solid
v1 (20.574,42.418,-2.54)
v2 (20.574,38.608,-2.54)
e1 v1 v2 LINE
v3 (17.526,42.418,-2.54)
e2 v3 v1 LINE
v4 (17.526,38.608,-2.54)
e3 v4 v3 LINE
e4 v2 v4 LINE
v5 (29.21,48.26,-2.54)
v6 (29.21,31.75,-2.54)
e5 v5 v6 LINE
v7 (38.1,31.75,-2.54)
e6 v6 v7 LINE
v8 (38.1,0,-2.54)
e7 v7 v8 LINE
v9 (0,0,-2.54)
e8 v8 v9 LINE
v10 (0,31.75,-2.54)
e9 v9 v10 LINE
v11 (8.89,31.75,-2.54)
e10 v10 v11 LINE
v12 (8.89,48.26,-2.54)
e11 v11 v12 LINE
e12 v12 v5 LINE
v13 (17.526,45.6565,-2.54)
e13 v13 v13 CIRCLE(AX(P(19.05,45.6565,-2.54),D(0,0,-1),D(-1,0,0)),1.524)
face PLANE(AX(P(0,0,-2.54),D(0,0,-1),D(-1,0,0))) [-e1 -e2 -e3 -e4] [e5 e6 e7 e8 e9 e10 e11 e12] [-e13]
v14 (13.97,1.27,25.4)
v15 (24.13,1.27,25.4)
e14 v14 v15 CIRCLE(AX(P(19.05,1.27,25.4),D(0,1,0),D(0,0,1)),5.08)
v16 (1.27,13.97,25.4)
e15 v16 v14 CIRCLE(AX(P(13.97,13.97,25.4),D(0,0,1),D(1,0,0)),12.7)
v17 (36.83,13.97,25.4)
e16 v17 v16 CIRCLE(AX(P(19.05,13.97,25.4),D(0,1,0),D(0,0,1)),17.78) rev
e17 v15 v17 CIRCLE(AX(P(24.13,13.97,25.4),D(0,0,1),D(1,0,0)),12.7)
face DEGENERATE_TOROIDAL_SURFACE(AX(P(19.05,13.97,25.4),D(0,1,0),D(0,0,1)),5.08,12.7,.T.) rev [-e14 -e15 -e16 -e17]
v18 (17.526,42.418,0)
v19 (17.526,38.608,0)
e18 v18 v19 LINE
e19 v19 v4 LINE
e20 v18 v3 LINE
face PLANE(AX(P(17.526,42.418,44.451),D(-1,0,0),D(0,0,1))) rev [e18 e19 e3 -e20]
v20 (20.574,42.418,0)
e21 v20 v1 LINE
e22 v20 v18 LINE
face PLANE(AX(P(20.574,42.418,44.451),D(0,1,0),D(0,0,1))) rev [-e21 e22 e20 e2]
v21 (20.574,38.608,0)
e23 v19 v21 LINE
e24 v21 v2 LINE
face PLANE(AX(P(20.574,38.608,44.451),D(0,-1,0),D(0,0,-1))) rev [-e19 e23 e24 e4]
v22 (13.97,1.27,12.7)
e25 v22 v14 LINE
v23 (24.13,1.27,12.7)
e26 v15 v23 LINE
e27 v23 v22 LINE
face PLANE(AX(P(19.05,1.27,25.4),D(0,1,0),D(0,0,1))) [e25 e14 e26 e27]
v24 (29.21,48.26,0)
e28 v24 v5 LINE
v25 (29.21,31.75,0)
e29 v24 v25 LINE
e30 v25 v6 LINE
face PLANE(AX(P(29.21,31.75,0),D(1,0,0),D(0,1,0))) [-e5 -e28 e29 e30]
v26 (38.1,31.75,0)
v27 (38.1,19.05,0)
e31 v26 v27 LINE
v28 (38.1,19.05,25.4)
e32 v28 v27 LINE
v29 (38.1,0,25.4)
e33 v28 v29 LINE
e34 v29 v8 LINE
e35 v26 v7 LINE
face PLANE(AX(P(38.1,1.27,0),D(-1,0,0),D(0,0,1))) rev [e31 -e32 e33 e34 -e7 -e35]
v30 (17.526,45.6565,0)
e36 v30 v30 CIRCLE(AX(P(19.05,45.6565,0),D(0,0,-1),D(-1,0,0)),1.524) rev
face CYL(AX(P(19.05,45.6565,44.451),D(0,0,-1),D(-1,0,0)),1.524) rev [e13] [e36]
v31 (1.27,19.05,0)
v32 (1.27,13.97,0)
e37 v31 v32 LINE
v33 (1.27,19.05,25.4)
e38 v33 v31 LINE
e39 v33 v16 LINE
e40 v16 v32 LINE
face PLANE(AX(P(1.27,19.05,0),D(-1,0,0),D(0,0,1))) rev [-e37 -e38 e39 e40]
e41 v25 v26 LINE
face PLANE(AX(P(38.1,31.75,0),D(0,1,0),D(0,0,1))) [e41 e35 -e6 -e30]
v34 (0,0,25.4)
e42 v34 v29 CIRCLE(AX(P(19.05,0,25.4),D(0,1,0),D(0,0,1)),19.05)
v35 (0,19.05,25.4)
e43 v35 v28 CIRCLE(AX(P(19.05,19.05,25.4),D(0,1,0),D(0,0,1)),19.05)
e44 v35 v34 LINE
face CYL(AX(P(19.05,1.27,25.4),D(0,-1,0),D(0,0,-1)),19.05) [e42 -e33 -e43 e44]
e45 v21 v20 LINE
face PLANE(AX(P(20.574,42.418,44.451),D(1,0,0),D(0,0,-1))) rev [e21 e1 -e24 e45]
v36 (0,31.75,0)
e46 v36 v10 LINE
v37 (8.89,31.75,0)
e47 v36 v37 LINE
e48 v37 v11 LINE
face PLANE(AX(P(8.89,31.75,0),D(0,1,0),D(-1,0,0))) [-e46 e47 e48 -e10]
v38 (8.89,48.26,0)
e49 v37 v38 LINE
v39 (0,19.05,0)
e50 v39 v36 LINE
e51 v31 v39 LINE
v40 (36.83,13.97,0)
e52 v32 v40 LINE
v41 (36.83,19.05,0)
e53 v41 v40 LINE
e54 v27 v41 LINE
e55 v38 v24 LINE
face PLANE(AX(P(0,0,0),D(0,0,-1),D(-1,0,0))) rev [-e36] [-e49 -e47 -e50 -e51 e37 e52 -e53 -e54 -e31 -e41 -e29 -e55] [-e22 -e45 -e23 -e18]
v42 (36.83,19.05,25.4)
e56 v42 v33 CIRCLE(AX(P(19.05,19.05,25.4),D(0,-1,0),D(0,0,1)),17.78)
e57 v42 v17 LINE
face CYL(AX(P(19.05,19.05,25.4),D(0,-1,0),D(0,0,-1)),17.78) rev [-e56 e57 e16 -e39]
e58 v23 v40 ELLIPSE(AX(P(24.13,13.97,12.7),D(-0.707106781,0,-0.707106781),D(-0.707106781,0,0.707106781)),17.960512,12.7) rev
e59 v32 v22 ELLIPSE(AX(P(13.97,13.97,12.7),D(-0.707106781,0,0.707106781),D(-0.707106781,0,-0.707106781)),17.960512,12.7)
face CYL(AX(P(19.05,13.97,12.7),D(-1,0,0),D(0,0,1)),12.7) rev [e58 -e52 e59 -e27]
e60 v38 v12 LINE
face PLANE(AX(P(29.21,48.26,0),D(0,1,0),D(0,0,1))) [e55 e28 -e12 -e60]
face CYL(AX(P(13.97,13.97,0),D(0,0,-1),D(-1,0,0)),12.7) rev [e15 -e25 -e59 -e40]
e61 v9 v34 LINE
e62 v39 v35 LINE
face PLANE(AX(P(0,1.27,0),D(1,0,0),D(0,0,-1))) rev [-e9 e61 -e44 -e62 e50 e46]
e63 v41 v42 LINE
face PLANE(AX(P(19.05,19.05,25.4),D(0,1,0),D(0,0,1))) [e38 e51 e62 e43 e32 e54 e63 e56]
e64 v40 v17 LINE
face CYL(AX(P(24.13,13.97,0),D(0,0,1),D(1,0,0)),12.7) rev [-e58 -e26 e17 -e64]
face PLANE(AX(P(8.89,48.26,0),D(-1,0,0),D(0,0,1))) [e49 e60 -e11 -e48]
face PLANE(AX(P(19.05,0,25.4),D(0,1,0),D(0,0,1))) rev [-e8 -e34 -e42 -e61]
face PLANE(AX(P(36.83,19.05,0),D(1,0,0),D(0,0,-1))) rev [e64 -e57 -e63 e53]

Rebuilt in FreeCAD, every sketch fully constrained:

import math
import FreeCAD as App
import Part
import Sketcher
from FreeCAD import Vector
Q = App.Units.Quantity


def edges_at(feature, points):
    """Names of the edges that pass closest to the given points."""
    edges = feature.Shape.Edges
    near = lambda p: min(range(len(edges)), key=lambda i: edges[i].distToShape(Part.Vertex(*p))[0])
    return sorted({f"Edge{near(p) + 1}" for p in points})


def add_polygon(sketch, points):
    """Adds a closed chain of lines whose ends are joined by coincident constraints."""
    first, n = sketch.GeometryCount, len(points)
    for a, b in zip(points, points[1:] + points[:1]):
        sketch.addGeometry(Part.LineSegment(App.Vector(*a, 0), App.Vector(*b, 0)), False)
    for i in range(n):
        sketch.addConstraint(Sketcher.Constraint("Coincident", first + i, 2, first + (i + 1) % n, 1))

doc = App.newDocument("Part")
body = doc.addObject("PartDesign::Body", "Body")

sketch1 = body.newObject("Sketcher::SketchObject", "Sketch")
sketch1.AttachmentSupport = (doc.getObject("XZ_Plane"), [""])
sketch1.MapMode = "FlatFace"
sketch1.addGeometry([
    Part.LineSegment(Vector(38, 0, 0), Vector(0, 0, 0)),
    Part.LineSegment(Vector(0, 0, 0), Vector(0, 25, 0)),
    Part.ArcOfCircle(Part.Circle(Vector(19, 25, 0), Vector(0, 0, 1), 19), math.radians(0), math.radians(180)),
    Part.LineSegment(Vector(38, 25, 0), Vector(38, 0, 0)),
], False)
sketch1.addConstraint([
    Sketcher.Constraint("Coincident", 0, 2, 1, 1),
    Sketcher.Constraint("Tangent", 1, 2, 2, 2),
    Sketcher.Constraint("Tangent", 2, 1, 3, 1),
    Sketcher.Constraint("Coincident", 3, 2, 0, 1),
    Sketcher.Constraint("Horizontal", 0),
    Sketcher.Constraint("Vertical", 1),
    Sketcher.Constraint("Vertical", 3),
    Sketcher.Constraint("Coincident", 0, 2, -1, 1),
    Sketcher.Constraint("DistanceY", 1, 1, 1, 2, Q("1 in")),
    Sketcher.Constraint("Radius", 2, Q("0.75 in")),
])
pad1 = body.newObject("PartDesign::Pad", "Pad")
pad1.Profile = sketch1
pad1.Length = Q("0.05 in")
pad1.Reversed = True

sketch2 = body.newObject("Sketcher::SketchObject", "Sketch001")
sketch2.AttachmentSupport = (doc.getObject("XZ_Plane"), [""])
sketch2.MapMode = "FlatFace"
sketch2.AttachmentOffset = App.Placement(Vector(0, 0, -0.05 * 25.4), App.Rotation())
sketch2.addGeometry([
    Part.LineSegment(Vector(0, 0, 0), Vector(0, 25.4, 0)),
    Part.ArcOfCircle(Part.Circle(Vector(19.1, 25.4, 0), Vector(0, 0, 1), 19.1), math.radians(0), math.radians(180)),
    Part.LineSegment(Vector(38.1, 25.4, 0), Vector(38.1, 0, 0)),
    Part.LineSegment(Vector(38.1, 0, 0), Vector(36.8, 0, 0)),
    Part.LineSegment(Vector(36.8, 0, 0), Vector(36.8, 25.4, 0)),
    Part.ArcOfCircle(Part.Circle(Vector(19.1, 25.4, 0), Vector(0, 0, 1), 17.8), math.radians(0), math.radians(180)),
    Part.LineSegment(Vector(1.3, 25.4, 0), Vector(1.3, 0, 0)),
    Part.LineSegment(Vector(1.3, 0, 0), Vector(0, 0, 0)),
], False)
sketch2.addConstraint([
    Sketcher.Constraint("Tangent", 0, 2, 1, 2),
    Sketcher.Constraint("Tangent", 1, 1, 2, 1),
    Sketcher.Constraint("Coincident", 2, 2, 3, 1),
    Sketcher.Constraint("Coincident", 3, 2, 4, 1),
    Sketcher.Constraint("Tangent", 4, 2, 5, 1),
    Sketcher.Constraint("Tangent", 5, 2, 6, 1),
    Sketcher.Constraint("Coincident", 6, 2, 7, 1),
    Sketcher.Constraint("Coincident", 7, 2, 0, 1),
    Sketcher.Constraint("Vertical", 0),
    Sketcher.Constraint("Vertical", 2),
    Sketcher.Constraint("Horizontal", 3),
    Sketcher.Constraint("Vertical", 4),
    Sketcher.Constraint("Vertical", 6),
    Sketcher.Constraint("Horizontal", 7),
    Sketcher.Constraint("Coincident", 7, 2, -1, 1),
    Sketcher.Constraint("Coincident", 5, 3, 1, 3),
    Sketcher.Constraint("PointOnObject", 2, 2, -1),
    Sketcher.Constraint("Radius", 5, Q("0.7 in")),
    Sketcher.Constraint("DistanceY", 0, 1, 0, 2, Q("1 in")),
    Sketcher.Constraint("Radius", 1, Q("0.75 in")),
])
pad2 = body.newObject("PartDesign::Pad", "Pad001")
pad2.Profile = sketch2
pad2.Length = Q("0.7 in")
pad2.Reversed = True

sketch3 = body.newObject("Sketcher::SketchObject", "Sketch002")
sketch3.AttachmentSupport = (doc.getObject("XY_Plane"), [""])
sketch3.MapMode = "FlatFace"
add_polygon(sketch3, [(38, 19), (38, 0), (0, 0), (0, 19)])
sketch3.addConstraint([
    Sketcher.Constraint("Vertical", 0),
    Sketcher.Constraint("Horizontal", 1),
    Sketcher.Constraint("Vertical", 2),
    Sketcher.Constraint("Horizontal", 3),
    Sketcher.Constraint("Coincident", 1, 2, -1, 1),
    Sketcher.Constraint("DistanceX", 1, 2, 1, 1, Q("1.5 in")),
    Sketcher.Constraint("DistanceY", 0, 2, 0, 1, Q("0.75 in")),
])
pad3 = body.newObject("PartDesign::Pad", "Pad002")
pad3.Profile = sketch3
pad3.Length = Q("0.1 in")
pad3.Reversed = True
doc.recompute()

fillet = body.newObject("PartDesign::Fillet", "Fillet")
fillet.Base = (pad3, edges_at(pad3, [
    (19.05, 1.27, 0),
    (36.83, 1.27, 12.7),
    (19.05, 1.27, 43.18),
    (1.27, 1.27, 12.7),
]))
fillet.Radius = Q("0.5 in")

sketch4 = body.newObject("Sketcher::SketchObject", "Sketch003")
sketch4.AttachmentSupport = (doc.getObject("XY_Plane"), [""])
sketch4.MapMode = "FlatFace"
sketch4.AttachmentOffset = App.Placement(Vector(0, 0, -0.1 * 25.4), App.Rotation())
add_polygon(sketch4, [(29, 48), (29, 32), (38, 32), (38, 19), (0, 19), (0, 32), (9, 32), (9, 48)])
sketch4.addConstraint([
    Sketcher.Constraint("Vertical", 0),
    Sketcher.Constraint("Horizontal", 1),
    Sketcher.Constraint("Vertical", 2),
    Sketcher.Constraint("Horizontal", 3),
    Sketcher.Constraint("Vertical", 4),
    Sketcher.Constraint("Horizontal", 5),
    Sketcher.Constraint("Vertical", 6),
    Sketcher.Constraint("Horizontal", 7),
    Sketcher.Constraint("PointOnObject", 3, 2, -2),
    Sketcher.Constraint("Horizontal", 1, 2, 4, 2),
    Sketcher.Constraint("Equal", 1, 5),
    Sketcher.Constraint("DistanceX", 3, 2, 3, 1, Q("1.5 in")),
    Sketcher.Constraint("DistanceX", 7, 1, 7, 2, Q("0.8 in")),
    Sketcher.Constraint("DistanceY", 2, 2, 2, 1, Q("0.5 in")),
    Sketcher.Constraint("DistanceY", 0, 2, 0, 1, Q("0.65 in")),
    Sketcher.Constraint("DistanceY", -1, 1, 6, 2, Q("1.9 in")),
])
pad4 = body.newObject("PartDesign::Pad", "Pad003")
pad4.Profile = sketch4
pad4.Length = Q("0.1 in")

sketch5 = body.newObject("Sketcher::SketchObject", "Sketch004")
sketch5.AttachmentSupport = (doc.getObject("XY_Plane"), [""])
sketch5.MapMode = "FlatFace"
sketch5.AttachmentOffset = App.Placement(Vector(0, 0, -0.1 * 25.4), App.Rotation())
sketch5.addGeometry(Part.Circle(Vector(19.1, 45.7, 0), Vector(0, 0, 1), 1.5), False)
sketch5.addConstraint([
    Sketcher.Constraint("Diameter", 0, Q("0.12 in")),
    Sketcher.Constraint("DistanceX", -1, 1, 0, 3, Q("0.75 in")),
    Sketcher.Constraint("DistanceY", -1, 1, 0, 3, Q("1.7975 in")),
])
pocket1 = body.newObject("PartDesign::Pocket", "Pocket")
pocket1.Profile = sketch5
pocket1.Type = "UpToFirst"
pocket1.Reversed = True

sketch6 = body.newObject("Sketcher::SketchObject", "Sketch005")
sketch6.AttachmentSupport = (doc.getObject("XY_Plane"), [""])
sketch6.MapMode = "FlatFace"
sketch6.AttachmentOffset = App.Placement(Vector(0, 0, -0.1 * 25.4), App.Rotation())
add_polygon(sketch6, [(20.6, 42.4), (20.6, 38.6), (17.5, 38.6), (17.5, 42.4)])
sketch6.addConstraint([
    Sketcher.Constraint("Vertical", 0),
    Sketcher.Constraint("Horizontal", 1),
    Sketcher.Constraint("Vertical", 2),
    Sketcher.Constraint("Horizontal", 3),
    Sketcher.Constraint("DistanceX", 1, 2, 1, 1, Q("0.12 in")),
    Sketcher.Constraint("DistanceY", 0, 2, 0, 1, Q("0.15 in")),
    Sketcher.Constraint("DistanceX", -1, 1, 0, 2, Q("0.81 in")),
    Sketcher.Constraint("DistanceY", -1, 1, 0, 2, Q("1.52 in")),
])
pocket2 = body.newObject("PartDesign::Pocket", "Pocket001")
pocket2.Profile = sketch6
pocket2.Type = "UpToFirst"
pocket2.Reversed = True

doc.recompute()
